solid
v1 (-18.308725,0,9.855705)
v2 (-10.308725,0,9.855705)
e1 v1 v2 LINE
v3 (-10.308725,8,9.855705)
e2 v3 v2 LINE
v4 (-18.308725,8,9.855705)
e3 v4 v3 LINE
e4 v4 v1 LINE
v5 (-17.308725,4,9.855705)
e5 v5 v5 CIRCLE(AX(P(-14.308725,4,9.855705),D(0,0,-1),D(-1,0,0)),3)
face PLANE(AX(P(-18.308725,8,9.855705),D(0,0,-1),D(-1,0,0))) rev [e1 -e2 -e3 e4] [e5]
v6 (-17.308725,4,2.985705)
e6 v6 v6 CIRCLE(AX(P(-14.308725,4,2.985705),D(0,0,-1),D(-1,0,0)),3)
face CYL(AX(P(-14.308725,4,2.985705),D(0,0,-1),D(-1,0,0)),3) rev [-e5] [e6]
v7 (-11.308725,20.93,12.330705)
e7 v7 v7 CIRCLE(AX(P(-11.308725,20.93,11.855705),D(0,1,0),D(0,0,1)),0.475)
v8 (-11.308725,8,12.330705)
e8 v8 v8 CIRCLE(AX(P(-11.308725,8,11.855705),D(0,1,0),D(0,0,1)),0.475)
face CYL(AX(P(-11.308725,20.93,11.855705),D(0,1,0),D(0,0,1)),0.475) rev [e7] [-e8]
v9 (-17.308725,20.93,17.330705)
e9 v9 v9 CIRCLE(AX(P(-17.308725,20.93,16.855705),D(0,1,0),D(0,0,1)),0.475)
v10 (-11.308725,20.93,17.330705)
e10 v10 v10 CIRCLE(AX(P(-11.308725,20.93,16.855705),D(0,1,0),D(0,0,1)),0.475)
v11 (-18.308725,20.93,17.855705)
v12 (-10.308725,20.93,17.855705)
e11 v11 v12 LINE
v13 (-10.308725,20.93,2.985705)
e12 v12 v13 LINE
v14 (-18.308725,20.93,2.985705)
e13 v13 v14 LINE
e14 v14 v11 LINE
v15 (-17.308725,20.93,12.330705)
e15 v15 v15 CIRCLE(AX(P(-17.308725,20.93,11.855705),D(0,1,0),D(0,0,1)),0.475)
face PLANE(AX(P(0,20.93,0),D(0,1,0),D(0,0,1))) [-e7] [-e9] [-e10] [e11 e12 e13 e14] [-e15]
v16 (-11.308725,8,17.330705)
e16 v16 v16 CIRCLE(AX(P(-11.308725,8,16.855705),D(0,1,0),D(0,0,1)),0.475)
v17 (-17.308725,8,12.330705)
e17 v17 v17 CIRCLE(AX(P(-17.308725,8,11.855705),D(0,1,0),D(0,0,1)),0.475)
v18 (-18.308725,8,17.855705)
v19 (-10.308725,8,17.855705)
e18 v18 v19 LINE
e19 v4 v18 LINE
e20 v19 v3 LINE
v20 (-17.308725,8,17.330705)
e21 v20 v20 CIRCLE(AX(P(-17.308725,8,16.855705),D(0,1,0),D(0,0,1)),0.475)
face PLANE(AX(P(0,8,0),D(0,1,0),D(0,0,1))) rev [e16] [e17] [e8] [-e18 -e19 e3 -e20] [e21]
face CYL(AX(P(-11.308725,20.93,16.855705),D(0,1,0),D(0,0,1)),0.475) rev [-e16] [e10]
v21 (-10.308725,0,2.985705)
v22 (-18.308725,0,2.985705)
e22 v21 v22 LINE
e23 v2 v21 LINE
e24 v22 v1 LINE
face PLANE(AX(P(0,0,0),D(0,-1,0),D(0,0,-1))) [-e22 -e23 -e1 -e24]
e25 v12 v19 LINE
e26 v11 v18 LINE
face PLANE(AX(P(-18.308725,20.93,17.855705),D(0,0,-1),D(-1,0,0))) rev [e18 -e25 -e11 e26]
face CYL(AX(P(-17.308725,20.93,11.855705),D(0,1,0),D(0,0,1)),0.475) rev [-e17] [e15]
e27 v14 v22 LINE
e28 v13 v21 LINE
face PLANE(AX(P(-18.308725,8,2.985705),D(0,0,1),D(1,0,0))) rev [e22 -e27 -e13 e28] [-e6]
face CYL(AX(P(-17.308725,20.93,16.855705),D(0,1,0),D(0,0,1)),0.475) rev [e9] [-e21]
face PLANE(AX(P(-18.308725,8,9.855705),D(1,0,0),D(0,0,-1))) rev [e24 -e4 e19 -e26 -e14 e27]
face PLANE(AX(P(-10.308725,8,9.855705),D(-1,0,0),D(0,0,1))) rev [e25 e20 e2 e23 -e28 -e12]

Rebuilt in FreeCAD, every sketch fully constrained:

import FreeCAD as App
import Part
import Sketcher

V = App.Vector
Q = App.Units.Quantity


def add_polygon(sketch, points):
    """Adds a closed chain of lines whose ends are joined by coincident constraints."""
    first, n = sketch.GeometryCount, len(points)
    for a, b in zip(points, points[1:] + points[:1]):
        sketch.addGeometry(Part.LineSegment(App.Vector(*a, 0), App.Vector(*b, 0)), False)
    for i in range(n):
        sketch.addConstraint(Sketcher.Constraint("Coincident", first + i, 2, first + (i + 1) % n, 1))

doc = App.newDocument("Part")
body = doc.addObject("PartDesign::Body", "Body")

# Sketch on XZ plane
sketch1 = doc.addObject("Sketcher::SketchObject", "Sketch")
body.addObject(sketch1)
sketch1.AttachmentSupport = (doc.XZ_Plane, [""])
sketch1.MapMode = "FlatFace"
add_polygon(sketch1, [(-18, 3), (-18, 10), (-10, 10), (-10, 3)])  # lines 0-3
sketch1.addConstraint(Sketcher.Constraint("Vertical", 0))
sketch1.addConstraint(Sketcher.Constraint("Horizontal", 1))
sketch1.addConstraint(Sketcher.Constraint("Vertical", 2))
sketch1.addConstraint(Sketcher.Constraint("Horizontal", 3))
sketch1.addConstraint(Sketcher.Constraint("DistanceX", 1, 1, 1, 2, Q("8 mm")))
sketch1.addConstraint(Sketcher.Constraint("DistanceY", 0, 1, 0, 2, Q("6.87 mm")))
sketch1.addConstraint(Sketcher.Constraint("DistanceX", 0, 2, -1, 1, Q("18.308725 mm")))
sketch1.addConstraint(Sketcher.Constraint("DistanceY", -1, 1, 0, 2, Q("9.855705 mm")))
pad1 = doc.addObject("PartDesign::Pad", "Pad")
body.addObject(pad1)
pad1.Profile = sketch1
pad1.Length = 8
pad1.Reversed = True

# Sketch on XZ plane
sketch2 = doc.addObject("Sketcher::SketchObject", "Sketch001")
body.addObject(sketch2)
sketch2.AttachmentSupport = (doc.XZ_Plane, [""])
sketch2.MapMode = "FlatFace"
sketch2.AttachmentOffset = App.Placement(V(0, 0, -8), App.Rotation())
add_polygon(sketch2, [(-18, 3), (-18, 18), (-10, 18), (-10, 3)])  # lines 0-3
sketch2.addConstraint(Sketcher.Constraint("Vertical", 0))
sketch2.addConstraint(Sketcher.Constraint("Horizontal", 1))
sketch2.addConstraint(Sketcher.Constraint("Vertical", 2))
sketch2.addConstraint(Sketcher.Constraint("Horizontal", 3))
sketch2.addConstraint(Sketcher.Constraint("DistanceX", 1, 1, 1, 2, Q("8 mm")))
sketch2.addConstraint(Sketcher.Constraint("DistanceY", 0, 1, 0, 2, Q("14.87 mm")))
sketch2.addConstraint(Sketcher.Constraint("DistanceX", 0, 2, -1, 1, Q("18.308725 mm")))
sketch2.addConstraint(Sketcher.Constraint("DistanceY", -1, 1, 0, 2, Q("17.855705 mm")))
pad2 = doc.addObject("PartDesign::Pad", "Pad001")
body.addObject(pad2)
pad2.Profile = sketch2
pad2.Length = 12.93
pad2.Reversed = True

# Sketch on XZ plane
sketch3 = doc.addObject("Sketcher::SketchObject", "Sketch002")
body.addObject(sketch3)
sketch3.AttachmentSupport = (doc.XZ_Plane, [""])
sketch3.MapMode = "FlatFace"
sketch3.AttachmentOffset = App.Placement(V(0, 0, -20.93), App.Rotation())
sketch3.addGeometry(Part.Circle(V(-17.31, 11.86, 0), V(0, 0, 1), 0.47), False)
sketch3.addGeometry(Part.Circle(V(-11.31, 11.86, 0), V(0, 0, 1), 0.47), False)
sketch3.addGeometry(Part.Circle(V(-17.31, 16.86, 0), V(0, 0, 1), 0.47), False)
sketch3.addGeometry(Part.Circle(V(-11.31, 16.86, 0), V(0, 0, 1), 0.47), False)
sketch3.addConstraint(Sketcher.Constraint("Equal", 0, 1))
sketch3.addConstraint(Sketcher.Constraint("Equal", 1, 2))
sketch3.addConstraint(Sketcher.Constraint("Equal", 2, 3))
sketch3.addConstraint(Sketcher.Constraint("Horizontal", 0, 3, 1, 3))
sketch3.addConstraint(Sketcher.Constraint("Horizontal", 2, 3, 3, 3))
sketch3.addConstraint(Sketcher.Constraint("Vertical", 0, 3, 2, 3))
sketch3.addConstraint(Sketcher.Constraint("Vertical", 1, 3, 3, 3))
sketch3.addConstraint(Sketcher.Constraint("Diameter", 0, Q("0.95 mm")))
sketch3.addConstraint(Sketcher.Constraint("DistanceX", 0, 3, 1, 3, Q("6 mm")))
sketch3.addConstraint(Sketcher.Constraint("DistanceY", 0, 3, 2, 3, Q("5 mm")))
sketch3.addConstraint(Sketcher.Constraint("DistanceX", 0, 3, -1, 1, Q("17.308725 mm")))
sketch3.addConstraint(Sketcher.Constraint("DistanceY", -1, 1, 0, 3, Q("11.855705 mm")))
doc.recompute()
hole = doc.addObject("PartDesign::Hole", "Hole")
body.addObject(hole)
hole.Profile = sketch3
hole.ThreadType = "None"
hole.Diameter = 0.95
hole.DepthType = "ThroughAll"
hole.Reversed = True

# Sketch on XY plane
sketch4 = doc.addObject("Sketcher::SketchObject", "Sketch003")
body.addObject(sketch4)
sketch4.AttachmentSupport = (doc.XY_Plane, [""])
sketch4.MapMode = "FlatFace"
sketch4.AttachmentOffset = App.Placement(V(0, 0, 2.985705), App.Rotation())
sketch4.addGeometry(Part.Circle(V(-14.3, 4, 0), V(0, 0, 1), 3), False)
sketch4.addConstraint(Sketcher.Constraint("Diameter", 0, Q("6 mm")))
sketch4.addConstraint(Sketcher.Constraint("DistanceY", -1, 1, 0, 3, Q("4 mm")))
sketch4.addConstraint(Sketcher.Constraint("DistanceX", 0, 3, -1, 1, Q("14.308725 mm")))
doc.recompute()
hole2 = doc.addObject("PartDesign::Hole", "Hole001")
body.addObject(hole2)
hole2.Profile = sketch4
hole2.ThreadType = "None"
hole2.Diameter = 6
hole2.DepthType = "ThroughAll"
hole2.Reversed = True

doc.recompute()
